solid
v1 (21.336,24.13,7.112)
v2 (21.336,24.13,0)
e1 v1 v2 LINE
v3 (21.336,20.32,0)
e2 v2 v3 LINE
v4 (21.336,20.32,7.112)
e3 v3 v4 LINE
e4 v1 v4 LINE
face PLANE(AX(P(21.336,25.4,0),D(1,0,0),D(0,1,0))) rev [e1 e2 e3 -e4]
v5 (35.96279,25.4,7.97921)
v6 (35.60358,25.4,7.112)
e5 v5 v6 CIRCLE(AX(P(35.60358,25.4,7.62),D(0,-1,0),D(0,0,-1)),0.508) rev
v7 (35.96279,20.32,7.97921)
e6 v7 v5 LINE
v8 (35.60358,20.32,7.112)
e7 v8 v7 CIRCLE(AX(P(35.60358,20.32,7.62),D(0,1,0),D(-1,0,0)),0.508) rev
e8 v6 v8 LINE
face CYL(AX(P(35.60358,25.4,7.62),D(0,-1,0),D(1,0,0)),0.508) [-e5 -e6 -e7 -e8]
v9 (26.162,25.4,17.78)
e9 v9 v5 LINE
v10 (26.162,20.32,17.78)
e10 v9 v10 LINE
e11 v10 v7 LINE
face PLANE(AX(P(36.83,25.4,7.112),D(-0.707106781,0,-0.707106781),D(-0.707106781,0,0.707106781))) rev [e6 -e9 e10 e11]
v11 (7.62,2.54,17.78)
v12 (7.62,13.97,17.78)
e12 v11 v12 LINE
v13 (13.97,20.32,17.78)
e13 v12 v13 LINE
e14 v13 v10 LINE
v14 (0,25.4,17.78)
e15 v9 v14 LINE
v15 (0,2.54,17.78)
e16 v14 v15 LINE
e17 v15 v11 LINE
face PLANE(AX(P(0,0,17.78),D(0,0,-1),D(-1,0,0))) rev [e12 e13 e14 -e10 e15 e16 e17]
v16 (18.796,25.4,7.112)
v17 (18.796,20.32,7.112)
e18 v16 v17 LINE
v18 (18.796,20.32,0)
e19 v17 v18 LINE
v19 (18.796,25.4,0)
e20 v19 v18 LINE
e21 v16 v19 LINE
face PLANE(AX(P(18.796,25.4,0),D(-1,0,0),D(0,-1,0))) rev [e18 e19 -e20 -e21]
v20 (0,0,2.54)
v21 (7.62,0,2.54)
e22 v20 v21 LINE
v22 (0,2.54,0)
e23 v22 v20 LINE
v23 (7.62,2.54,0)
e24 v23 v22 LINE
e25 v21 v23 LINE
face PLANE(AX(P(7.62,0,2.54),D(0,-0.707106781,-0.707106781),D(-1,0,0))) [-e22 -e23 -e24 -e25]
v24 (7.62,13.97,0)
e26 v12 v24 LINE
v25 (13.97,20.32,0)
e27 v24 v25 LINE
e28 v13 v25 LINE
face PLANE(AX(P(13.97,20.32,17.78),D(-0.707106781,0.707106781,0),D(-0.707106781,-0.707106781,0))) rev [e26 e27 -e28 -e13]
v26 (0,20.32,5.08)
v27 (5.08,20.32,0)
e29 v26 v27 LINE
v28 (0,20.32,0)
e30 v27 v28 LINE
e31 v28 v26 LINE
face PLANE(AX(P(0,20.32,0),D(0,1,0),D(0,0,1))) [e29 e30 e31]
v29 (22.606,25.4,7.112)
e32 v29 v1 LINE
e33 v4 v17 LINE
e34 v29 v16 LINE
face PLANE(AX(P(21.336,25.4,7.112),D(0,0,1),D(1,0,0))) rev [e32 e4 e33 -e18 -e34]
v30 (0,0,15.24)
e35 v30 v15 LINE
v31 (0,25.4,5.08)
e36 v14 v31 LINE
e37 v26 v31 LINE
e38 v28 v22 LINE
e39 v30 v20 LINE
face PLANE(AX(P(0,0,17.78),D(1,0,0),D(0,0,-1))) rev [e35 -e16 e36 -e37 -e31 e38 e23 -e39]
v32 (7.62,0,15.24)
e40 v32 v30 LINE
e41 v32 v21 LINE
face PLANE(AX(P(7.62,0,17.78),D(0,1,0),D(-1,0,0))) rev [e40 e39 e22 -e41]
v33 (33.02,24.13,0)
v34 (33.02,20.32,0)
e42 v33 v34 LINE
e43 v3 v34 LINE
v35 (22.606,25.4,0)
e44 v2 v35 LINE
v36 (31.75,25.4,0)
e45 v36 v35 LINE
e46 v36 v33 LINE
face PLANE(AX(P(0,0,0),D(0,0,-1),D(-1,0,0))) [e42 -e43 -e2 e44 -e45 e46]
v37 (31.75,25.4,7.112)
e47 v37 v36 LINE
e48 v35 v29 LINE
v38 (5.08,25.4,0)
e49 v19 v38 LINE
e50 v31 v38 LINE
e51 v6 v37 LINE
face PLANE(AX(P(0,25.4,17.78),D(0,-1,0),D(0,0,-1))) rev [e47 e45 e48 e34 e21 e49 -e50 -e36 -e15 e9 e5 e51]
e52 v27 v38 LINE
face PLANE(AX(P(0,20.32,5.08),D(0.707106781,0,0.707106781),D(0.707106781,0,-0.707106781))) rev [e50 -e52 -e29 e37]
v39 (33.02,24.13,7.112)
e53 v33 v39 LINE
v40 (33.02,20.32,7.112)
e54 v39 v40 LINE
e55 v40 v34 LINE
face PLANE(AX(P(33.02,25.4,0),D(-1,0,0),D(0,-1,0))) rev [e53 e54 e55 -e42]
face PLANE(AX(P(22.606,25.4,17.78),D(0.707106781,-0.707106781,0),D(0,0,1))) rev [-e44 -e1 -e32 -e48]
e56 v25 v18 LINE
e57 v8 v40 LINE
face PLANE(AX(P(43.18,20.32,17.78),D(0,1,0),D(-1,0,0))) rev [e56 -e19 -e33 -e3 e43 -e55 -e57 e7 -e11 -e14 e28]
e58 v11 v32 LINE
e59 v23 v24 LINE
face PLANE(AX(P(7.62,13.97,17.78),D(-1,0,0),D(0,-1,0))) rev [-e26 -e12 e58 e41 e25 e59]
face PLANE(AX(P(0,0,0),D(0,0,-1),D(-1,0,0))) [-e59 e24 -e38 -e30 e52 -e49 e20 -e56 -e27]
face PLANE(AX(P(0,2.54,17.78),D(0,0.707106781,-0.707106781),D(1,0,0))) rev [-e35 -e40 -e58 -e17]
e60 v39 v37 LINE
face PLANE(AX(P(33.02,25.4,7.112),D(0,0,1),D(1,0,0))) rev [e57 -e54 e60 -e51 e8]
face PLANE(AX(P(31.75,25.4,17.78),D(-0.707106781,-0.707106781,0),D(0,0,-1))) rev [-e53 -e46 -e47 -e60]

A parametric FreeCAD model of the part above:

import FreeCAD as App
import Part
import Sketcher

V = App.Vector
Q = App.Units.Quantity


def edges_at(feature, points):
    """Names of the edges that pass closest to the given points."""
    edges = feature.Shape.Edges
    near = lambda p: min(range(len(edges)), key=lambda i: edges[i].distToShape(Part.Vertex(*p))[0])
    return sorted({f"Edge{near(p) + 1}" for p in points})

doc = App.newDocument("Part")
body = doc.addObject("PartDesign::Body", "Body")

# Sketch on XY plane
sketch1 = body.newObject("Sketcher::SketchObject", "Sketch")
sketch1.AttachmentSupport = (doc.getObject("XY_Plane"), [""])
sketch1.MapMode = "FlatFace"
sketch1.addGeometry([
    Part.LineSegment(V(0, 25, 0), V(0, 0, 0)),  # 0
    Part.LineSegment(V(0, 0, 0), V(8, 0, 0)),  # 1
    Part.LineSegment(V(8, 0, 0), V(8, 14, 0)),  # 2
    Part.LineSegment(V(8, 14, 0), V(14, 20, 0)),  # 3
    Part.LineSegment(V(14, 20, 0), V(43, 20, 0)),  # 4
    Part.LineSegment(V(43, 20, 0), V(43, 25, 0)),  # 5
    Part.LineSegment(V(43, 25, 0), V(0, 25, 0)),  # 6
], False)
sketch1.addConstraint([
    Sketcher.Constraint("Coincident", 0, 2, 1, 1),
    Sketcher.Constraint("Coincident", 1, 2, 2, 1),
    Sketcher.Constraint("Coincident", 2, 2, 3, 1),
    Sketcher.Constraint("Coincident", 3, 2, 4, 1),
    Sketcher.Constraint("Coincident", 4, 2, 5, 1),
    Sketcher.Constraint("Coincident", 5, 2, 6, 1),
    Sketcher.Constraint("Coincident", 6, 2, 0, 1),
    Sketcher.Constraint("Vertical", 0),
    Sketcher.Constraint("Horizontal", 1),
    Sketcher.Constraint("Vertical", 2),
    Sketcher.Constraint("Horizontal", 4),
    Sketcher.Constraint("Vertical", 5),
    Sketcher.Constraint("Horizontal", 6),
    Sketcher.Constraint("Coincident", 0, 2, -1, 1),
    Sketcher.Constraint("DistanceY", 0, 2, 0, 1, Q("1 in")),
    Sketcher.Constraint("DistanceX", 1, 1, 1, 2, Q("0.3 in")),
    Sketcher.Constraint("DistanceX", 6, 2, 6, 1, Q("1.7 in")),
    Sketcher.Constraint("DistanceY", 5, 1, 5, 2, Q("0.2 in")),
    Sketcher.Constraint("Angle", 3, Q("45 deg")),
    Sketcher.Constraint("DistanceX", 4, 1, 4, 2, Q("1.15 in")),
])
pad1 = body.newObject("PartDesign::Pad", "Pad")
pad1.Profile = sketch1
pad1.Length = Q("0.7 in")

# Sketch on XZ plane
sketch2 = body.newObject("Sketcher::SketchObject", "Sketch001")
sketch2.AttachmentSupport = (doc.getObject("XZ_Plane"), [""])
sketch2.MapMode = "FlatFace"
sketch2.AttachmentOffset = App.Placement(V(0, 0, -0.8 * 25.4), App.Rotation())
sketch2.addGeometry([
    Part.LineSegment(V(18.8, 7.1, 0), V(18.8, 0, 0)),  # 0
    Part.LineSegment(V(18.8, 0, 0), V(21.3, 0, 0)),  # 1
    Part.LineSegment(V(21.3, 0, 0), V(21.3, 7.1, 0)),  # 2
    Part.LineSegment(V(21.3, 7.1, 0), V(18.8, 7.1, 0)),  # 3
    Part.LineSegment(V(33, 7.1, 0), V(33, 0, 0)),  # 4
    Part.LineSegment(V(33, 0, 0), V(43.2, 0, 0)),  # 5
    Part.LineSegment(V(43.2, 0, 0), V(43.2, 17.8, 0)),  # 6
    Part.LineSegment(V(43.2, 17.8, 0), V(26.2, 17.8, 0)),  # 7
    Part.LineSegment(V(26.2, 17.8, 0), V(36.8, 7.1, 0)),  # 8
    Part.LineSegment(V(36.8, 7.1, 0), V(33, 7.1, 0)),  # 9
], False)
sketch2.addConstraint([
    Sketcher.Constraint("Coincident", 0, 2, 1, 1),
    Sketcher.Constraint("Coincident", 1, 2, 2, 1),
    Sketcher.Constraint("Coincident", 2, 2, 3, 1),
    Sketcher.Constraint("Coincident", 3, 2, 0, 1),
    Sketcher.Constraint("Coincident", 4, 2, 5, 1),
    Sketcher.Constraint("Coincident", 5, 2, 6, 1),
    Sketcher.Constraint("Coincident", 6, 2, 7, 1),
    Sketcher.Constraint("Coincident", 7, 2, 8, 1),
    Sketcher.Constraint("Coincident", 8, 2, 9, 1),
    Sketcher.Constraint("Coincident", 9, 2, 4, 1),
    Sketcher.Constraint("Vertical", 0),
    Sketcher.Constraint("Horizontal", 1),
    Sketcher.Constraint("Vertical", 2),
    Sketcher.Constraint("Horizontal", 3),
    Sketcher.Constraint("Vertical", 4),
    Sketcher.Constraint("Horizontal", 5),
    Sketcher.Constraint("Vertical", 6),
    Sketcher.Constraint("Horizontal", 7),
    Sketcher.Constraint("Horizontal", 9),
    Sketcher.Constraint("PointOnObject", 0, 2, -1),
    Sketcher.Constraint("PointOnObject", 4, 2, -1),
    Sketcher.Constraint("Horizontal", 3, 2, 8, 2),
    Sketcher.Constraint("DistanceX", 1, 1, 1, 2, Q("0.1 in")),
    Sketcher.Constraint("DistanceX", 5, 1, 5, 2, Q("0.4 in")),
    Sketcher.Constraint("DistanceY", 6, 1, 6, 2, Q("0.7 in")),
    Sketcher.Constraint("Angle", 8, Q("-45 deg")),
    Sketcher.Constraint("DistanceX", 7, 2, 7, 1, Q("0.67 in")),
    Sketcher.Constraint("DistanceX", 9, 2, 9, 1, Q("0.15 in")),
    Sketcher.Constraint("DistanceX", -1, 1, 4, 2, Q("1.3 in")),
    Sketcher.Constraint("DistanceX", -1, 1, 0, 2, Q("0.74 in")),
])
pocket1 = body.newObject("PartDesign::Pocket", "Pocket")
pocket1.Profile = sketch2
pocket1.Type = "ThroughAll"

# Sketch on XZ plane
sketch3 = body.newObject("Sketcher::SketchObject", "Sketch002")
sketch3.AttachmentSupport = (doc.getObject("XZ_Plane"), [""])
sketch3.MapMode = "FlatFace"
sketch3.AttachmentOffset = App.Placement(V(0, 0, -1 * 25.4), App.Rotation())
sketch3.addGeometry([
    Part.LineSegment(V(0, 0, 0), V(0, 5, 0)),
    Part.LineSegment(V(0, 5, 0), V(5, 0, 0)),
    Part.LineSegment(V(5, 0, 0), V(0, 0, 0)),
], False)
sketch3.addConstraint([
    Sketcher.Constraint("Coincident", 0, 2, 1, 1),
    Sketcher.Constraint("Coincident", 1, 2, 2, 1),
    Sketcher.Constraint("Coincident", 2, 2, 0, 1),
    Sketcher.Constraint("Vertical", 0),
    Sketcher.Constraint("Horizontal", 2),
    Sketcher.Constraint("Coincident", 2, 2, -1, 1),
    Sketcher.Constraint("Equal", 2, 0),
    Sketcher.Constraint("DistanceX", 2, 2, 2, 1, Q("0.2 in")),
])
pocket2 = body.newObject("PartDesign::Pocket", "Pocket001")
pocket2.Profile = sketch3
pocket2.Length = Q("0.2 in")
pocket2.Reversed = True
doc.recompute()

chamfer = body.newObject("PartDesign::Chamfer", "Chamfer")
chamfer.Base = (pocket2, edges_at(pocket2, [(3.81, 0, 0), (3.81, 0, 17.78)]))
chamfer.Size = Q("0.1 in")
doc.recompute()

fillet = body.newObject("PartDesign::Fillet", "Fillet")
fillet.Base = (chamfer, edges_at(chamfer, [(36.83, 22.86, 7.112)]))
fillet.Radius = Q("0.02 in")
doc.recompute()

chamfer2 = body.newObject("PartDesign::Chamfer", "Chamfer001")
chamfer2.Base = (fillet, edges_at(fillet, [(21.336, 25.4, 3.556), (33.02, 25.4, 3.556)]))
chamfer2.Size = Q("0.05 in")

doc.recompute()
